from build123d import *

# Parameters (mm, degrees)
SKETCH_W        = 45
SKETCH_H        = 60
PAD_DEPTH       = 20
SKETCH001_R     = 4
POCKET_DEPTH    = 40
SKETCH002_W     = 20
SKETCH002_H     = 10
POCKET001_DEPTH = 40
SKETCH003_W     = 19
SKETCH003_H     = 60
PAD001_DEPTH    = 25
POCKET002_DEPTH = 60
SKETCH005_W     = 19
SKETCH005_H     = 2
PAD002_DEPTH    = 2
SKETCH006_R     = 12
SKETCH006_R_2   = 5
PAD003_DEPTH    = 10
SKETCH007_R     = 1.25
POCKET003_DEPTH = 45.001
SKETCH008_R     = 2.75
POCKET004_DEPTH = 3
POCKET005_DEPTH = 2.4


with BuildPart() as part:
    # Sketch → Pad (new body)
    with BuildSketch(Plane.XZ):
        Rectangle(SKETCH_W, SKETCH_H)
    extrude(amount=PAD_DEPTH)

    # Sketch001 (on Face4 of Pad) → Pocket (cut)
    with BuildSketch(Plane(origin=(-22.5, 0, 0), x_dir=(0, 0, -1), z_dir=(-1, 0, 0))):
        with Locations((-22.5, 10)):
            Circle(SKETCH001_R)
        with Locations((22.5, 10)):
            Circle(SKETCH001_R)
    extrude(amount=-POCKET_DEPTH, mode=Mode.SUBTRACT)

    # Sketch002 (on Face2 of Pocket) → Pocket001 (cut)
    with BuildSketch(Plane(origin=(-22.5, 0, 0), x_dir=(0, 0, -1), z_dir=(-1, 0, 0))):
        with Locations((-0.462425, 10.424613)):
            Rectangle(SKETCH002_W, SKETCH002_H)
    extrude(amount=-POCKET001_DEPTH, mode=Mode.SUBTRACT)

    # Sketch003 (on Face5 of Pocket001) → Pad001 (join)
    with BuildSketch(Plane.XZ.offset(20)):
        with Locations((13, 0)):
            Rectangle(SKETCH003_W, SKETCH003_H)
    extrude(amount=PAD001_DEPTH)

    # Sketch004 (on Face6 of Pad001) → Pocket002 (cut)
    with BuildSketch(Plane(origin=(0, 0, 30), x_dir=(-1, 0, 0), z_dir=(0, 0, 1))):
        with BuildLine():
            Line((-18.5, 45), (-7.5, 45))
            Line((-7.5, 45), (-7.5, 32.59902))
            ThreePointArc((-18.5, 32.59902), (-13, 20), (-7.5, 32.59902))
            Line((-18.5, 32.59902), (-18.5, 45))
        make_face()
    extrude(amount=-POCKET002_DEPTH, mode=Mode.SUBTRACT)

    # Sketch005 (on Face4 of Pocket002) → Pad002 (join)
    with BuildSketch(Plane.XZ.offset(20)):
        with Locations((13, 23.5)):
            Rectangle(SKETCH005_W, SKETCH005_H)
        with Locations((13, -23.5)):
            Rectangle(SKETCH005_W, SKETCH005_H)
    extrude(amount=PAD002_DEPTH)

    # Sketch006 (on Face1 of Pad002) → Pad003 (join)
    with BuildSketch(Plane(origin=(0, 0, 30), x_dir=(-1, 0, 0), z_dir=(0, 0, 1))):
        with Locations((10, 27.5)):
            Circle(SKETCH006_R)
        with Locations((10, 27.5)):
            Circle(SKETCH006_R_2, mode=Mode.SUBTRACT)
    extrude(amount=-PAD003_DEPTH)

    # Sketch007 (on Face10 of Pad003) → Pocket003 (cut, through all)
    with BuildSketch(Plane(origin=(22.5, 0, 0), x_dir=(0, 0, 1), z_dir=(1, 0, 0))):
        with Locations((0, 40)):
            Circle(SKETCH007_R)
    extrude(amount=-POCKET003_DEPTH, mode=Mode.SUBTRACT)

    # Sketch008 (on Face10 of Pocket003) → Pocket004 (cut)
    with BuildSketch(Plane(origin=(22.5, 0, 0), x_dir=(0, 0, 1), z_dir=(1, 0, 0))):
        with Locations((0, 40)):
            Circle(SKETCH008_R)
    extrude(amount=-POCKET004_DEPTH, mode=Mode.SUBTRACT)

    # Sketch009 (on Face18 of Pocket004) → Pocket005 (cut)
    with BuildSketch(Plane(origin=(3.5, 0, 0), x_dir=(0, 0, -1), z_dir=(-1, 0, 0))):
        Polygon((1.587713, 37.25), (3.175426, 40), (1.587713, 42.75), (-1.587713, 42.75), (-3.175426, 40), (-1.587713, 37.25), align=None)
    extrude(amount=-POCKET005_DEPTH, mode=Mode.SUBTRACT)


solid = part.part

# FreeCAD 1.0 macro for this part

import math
import FreeCAD as App
import Part
import Sketcher
Q = App.Units.Quantity


def add_polygon(sketch, points):
    """Adds a closed chain of lines whose ends are joined by coincident constraints."""
    first, n = sketch.GeometryCount, len(points)
    for a, b in zip(points, points[1:] + points[:1]):
        sketch.addGeometry(Part.LineSegment(App.Vector(*a, 0), App.Vector(*b, 0)), False)
    for i in range(n):
        sketch.addConstraint(Sketcher.Constraint("Coincident", first + i, 2, first + (i + 1) % n, 1))

doc = App.newDocument("Part")
body = doc.addObject("PartDesign::Body", "Body")

sketch1 = body.newObject("Sketcher::SketchObject", "Sketch")
sketch1.AttachmentSupport = (doc.getObject("XZ_Plane"), [""])
sketch1.MapMode = "FlatFace"
add_polygon(sketch1, [(-22, 30), (-22, -30), (22, -30), (22, 30)])
sketch1.addConstraint([
    Sketcher.Constraint("Vertical", 0),
    Sketcher.Constraint("Horizontal", 1),
    Sketcher.Constraint("Vertical", 2),
    Sketcher.Constraint("Horizontal", 3),
    Sketcher.Constraint("Symmetric", 0, 2, 2, 2, -1, 1),
    Sketcher.Constraint("DistanceX", 1, 1, 1, 2, Q("45 mm")),
    Sketcher.Constraint("DistanceY", 0, 2, 0, 1, Q("60 mm")),
])
pad1 = body.newObject("PartDesign::Pad", "Pad")
pad1.Profile = sketch1
pad1.Length = 20

sketch2 = body.newObject("Sketcher::SketchObject", "Sketch001")
sketch2.AttachmentSupport = (doc.getObject("YZ_Plane"), [""])
sketch2.MapMode = "FlatFace"
sketch2.AttachmentOffset = App.Placement(App.Vector(0, 0, -22.5), App.Rotation())
sketch2.addGeometry([
    Part.Circle(App.Vector(-10, 22.5, 0), App.Vector(0, 0, 1), 4),
    Part.Circle(App.Vector(-10, -22.5, 0), App.Vector(0, 0, 1), 4),
], False)
sketch2.addConstraint([
    Sketcher.Constraint("Equal", 0, 1),
    Sketcher.Constraint("Symmetric", 0, 3, 1, 3, -1),
    Sketcher.Constraint("Diameter", 0, Q("8 mm")),
    Sketcher.Constraint("DistanceX", 0, 3, -1, 1, Q("10 mm")),
    Sketcher.Constraint("DistanceY", 1, 3, 0, 3, Q("45 mm")),
])
pocket1 = body.newObject("PartDesign::Pocket", "Pocket")
pocket1.Profile = sketch2
pocket1.Length = 40
pocket1.Reversed = True

sketch3 = body.newObject("Sketcher::SketchObject", "Sketch002")
sketch3.AttachmentSupport = (doc.getObject("YZ_Plane"), [""])
sketch3.MapMode = "FlatFace"
sketch3.AttachmentOffset = App.Placement(App.Vector(0, 0, -22.5), App.Rotation())
add_polygon(sketch3, [(-15, 10), (-5, 10), (-5, -10), (-15, -10)])
sketch3.addConstraint([
    Sketcher.Constraint("Horizontal", 0),
    Sketcher.Constraint("Vertical", 1),
    Sketcher.Constraint("Horizontal", 2),
    Sketcher.Constraint("Vertical", 3),
    Sketcher.Constraint("DistanceX", 0, 1, 0, 2, Q("10 mm")),
    Sketcher.Constraint("DistanceY", 1, 2, 1, 1, Q("20 mm")),
    Sketcher.Constraint("DistanceX", 0, 2, -1, 1, Q("5.424613 mm")),
    Sketcher.Constraint("DistanceY", -1, 1, 0, 2, Q("10.462425 mm")),
])
pocket2 = body.newObject("PartDesign::Pocket", "Pocket001")
pocket2.Profile = sketch3
pocket2.Length = 40
pocket2.Reversed = True

sketch4 = body.newObject("Sketcher::SketchObject", "Sketch003")
sketch4.AttachmentSupport = (doc.getObject("XZ_Plane"), [""])
sketch4.MapMode = "FlatFace"
sketch4.AttachmentOffset = App.Placement(App.Vector(0, 0, 20), App.Rotation())
add_polygon(sketch4, [(4, 30), (4, -30), (22, -30), (22, 30)])
sketch4.addConstraint([
    Sketcher.Constraint("Vertical", 0),
    Sketcher.Constraint("Horizontal", 1),
    Sketcher.Constraint("Vertical", 2),
    Sketcher.Constraint("Horizontal", 3),
    Sketcher.Constraint("DistanceX", 1, 1, 1, 2, Q("19 mm")),
    Sketcher.Constraint("DistanceY", 0, 2, 0, 1, Q("60 mm")),
    Sketcher.Constraint("DistanceY", 0, 2, -1, 1, Q("30 mm")),
    Sketcher.Constraint("DistanceX", -1, 1, 0, 2, Q("3.5 mm")),
])
pad2 = body.newObject("PartDesign::Pad", "Pad001")
pad2.Profile = sketch4
pad2.Length = 25

sketch5 = body.newObject("Sketcher::SketchObject", "Sketch004")
sketch5.AttachmentSupport = (doc.getObject("XY_Plane"), [""])
sketch5.MapMode = "FlatFace"
sketch5.AttachmentOffset = App.Placement(App.Vector(0, 0, 30), App.Rotation())
sketch5.addGeometry([
    Part.LineSegment(App.Vector(8, -45, 0), App.Vector(18, -45, 0)),
    Part.LineSegment(App.Vector(18, -45, 0), App.Vector(18, -33, 0)),
    Part.ArcOfCircle(Part.Circle(App.Vector(13, -28, 0), App.Vector(0, 0, 1), 8), math.radians(-43), math.radians(223)),
    Part.LineSegment(App.Vector(8, -33, 0), App.Vector(8, -45, 0)),
], False)
sketch5.addConstraint([
    Sketcher.Constraint("Coincident", 0, 2, 1, 1),
    Sketcher.Constraint("Coincident", 1, 2, 2, 1),
    Sketcher.Constraint("Coincident", 2, 2, 3, 1),
    Sketcher.Constraint("Coincident", 3, 2, 0, 1),
    Sketcher.Constraint("Horizontal", 0),
    Sketcher.Constraint("Vertical", 1),
    Sketcher.Constraint("Vertical", 3),
    Sketcher.Constraint("Horizontal", 1, 2, 2, 2),
    Sketcher.Constraint("Radius", 2, Q("7.5 mm")),
    Sketcher.Constraint("DistanceX", 0, 1, 0, 2, Q("11 mm")),
    Sketcher.Constraint("DistanceX", -1, 1, 2, 3, Q("13 mm")),
    Sketcher.Constraint("DistanceY", 0, 2, -1, 1, Q("45 mm")),
    Sketcher.Constraint("DistanceY", 2, 3, -1, 1, Q("27.5 mm")),
])
pocket3 = body.newObject("PartDesign::Pocket", "Pocket002")
pocket3.Profile = sketch5
pocket3.Length = 60

sketch6 = body.newObject("Sketcher::SketchObject", "Sketch005")
sketch6.AttachmentSupport = (doc.getObject("XZ_Plane"), [""])
sketch6.MapMode = "FlatFace"
sketch6.AttachmentOffset = App.Placement(App.Vector(0, 0, 20), App.Rotation())
add_polygon(sketch6, [(3.5, 24.5), (3.5, 22.5), (22.5, 22.5), (22.5, 24.5)])
add_polygon(sketch6, [(3.5, -22.5), (3.5, -24.5), (22.5, -24.5), (22.5, -22.5)])
sketch6.addConstraint([
    Sketcher.Constraint("Vertical", 0),
    Sketcher.Constraint("Horizontal", 1),
    Sketcher.Constraint("Vertical", 2),
    Sketcher.Constraint("Horizontal", 3),
    Sketcher.Constraint("Vertical", 4),
    Sketcher.Constraint("Horizontal", 5),
    Sketcher.Constraint("Vertical", 6),
    Sketcher.Constraint("Horizontal", 7),
    Sketcher.Constraint("Symmetric", 3, 2, 4, 2, -1),
    Sketcher.Constraint("Symmetric", 1, 2, 6, 2, -1),
    Sketcher.Constraint("DistanceX", 1, 1, 1, 2, Q("19 mm")),
    Sketcher.Constraint("DistanceY", 0, 2, 0, 1, Q("2 mm")),
    Sketcher.Constraint("DistanceY", 4, 2, 0, 2, Q("47 mm")),
    Sketcher.Constraint("DistanceX", -1, 1, 0, 2, Q("3.5 mm")),
])
pad3 = body.newObject("PartDesign::Pad", "Pad002")
pad3.Profile = sketch6
pad3.Length = 2

sketch7 = body.newObject("Sketcher::SketchObject", "Sketch006")
sketch7.AttachmentSupport = (doc.getObject("XY_Plane"), [""])
sketch7.MapMode = "FlatFace"
sketch7.AttachmentOffset = App.Placement(App.Vector(0, 0, 30), App.Rotation())
sketch7.addGeometry([
    Part.Circle(App.Vector(-10, -28, 0), App.Vector(0, 0, 1), 12),
    Part.Circle(App.Vector(-10, -28, 0), App.Vector(0, 0, 1), 5),
], False)
sketch7.addConstraint([
    Sketcher.Constraint("Coincident", 1, 3, 0, 3),
    Sketcher.Constraint("Diameter", 0, Q("24 mm")),
    Sketcher.Constraint("Diameter", 1, Q("10 mm")),
    Sketcher.Constraint("DistanceX", 0, 3, -1, 1, Q("10 mm")),
    Sketcher.Constraint("DistanceY", 0, 3, -1, 1, Q("27.5 mm")),
])
pad4 = body.newObject("PartDesign::Pad", "Pad003")
pad4.Profile = sketch7
pad4.Length = 10
pad4.Reversed = True

sketch8 = body.newObject("Sketcher::SketchObject", "Sketch007")
sketch8.AttachmentSupport = (doc.getObject("YZ_Plane"), [""])
sketch8.MapMode = "FlatFace"
sketch8.AttachmentOffset = App.Placement(App.Vector(0, 0, 22.5), App.Rotation())
sketch8.addGeometry(Part.Circle(App.Vector(-40, 0, 0), App.Vector(0, 0, 1), 1.2), False)
sketch8.addConstraint([
    Sketcher.Constraint("PointOnObject", 0, 3, -1),
    Sketcher.Constraint("Diameter", 0, Q("2.5 mm")),
    Sketcher.Constraint("DistanceX", 0, 3, -1, 1, Q("40 mm")),
])
pocket4 = body.newObject("PartDesign::Pocket", "Pocket003")
pocket4.Profile = sketch8
pocket4.Type = "ThroughAll"

sketch9 = body.newObject("Sketcher::SketchObject", "Sketch008")
sketch9.AttachmentSupport = (doc.getObject("YZ_Plane"), [""])
sketch9.MapMode = "FlatFace"
sketch9.AttachmentOffset = App.Placement(App.Vector(0, 0, 22.5), App.Rotation())
sketch9.addGeometry(Part.Circle(App.Vector(-40, 0, 0), App.Vector(0, 0, 1), 2.8), False)
sketch9.addConstraint([
    Sketcher.Constraint("PointOnObject", 0, 3, -1),
    Sketcher.Constraint("Diameter", 0, Q("5.5 mm")),
    Sketcher.Constraint("DistanceX", 0, 3, -1, 1, Q("40 mm")),
])
pocket5 = body.newObject("PartDesign::Pocket", "Pocket004")
pocket5.Profile = sketch9
pocket5.Length = 3

sketch10 = body.newObject("Sketcher::SketchObject", "Sketch009")
sketch10.AttachmentSupport = (doc.getObject("YZ_Plane"), [""])
sketch10.MapMode = "FlatFace"
sketch10.AttachmentOffset = App.Placement(App.Vector(0, 0, 3.5), App.Rotation())
add_polygon(sketch10, [(-37.2, -1.6), (-40, -3.2), (-42.8, -1.6), (-42.8, 1.6), (-40, 3.2), (-37.2, 1.6)])
sketch10.addConstraint([
    Sketcher.Constraint("Vertical", 2),
    Sketcher.Constraint("Vertical", 5),
    Sketcher.Constraint("Symmetric", 0, 2, 3, 2, -1),
    Sketcher.Constraint("Parallel", 0, 3),
    Sketcher.Constraint("Parallel", 1, 4),
    Sketcher.Constraint("Horizontal", 2, 2, 4, 2),
    Sketcher.Constraint("Horizontal", 1, 2, 5, 2),
    Sketcher.Constraint("Angle", 0, Q("-150.000004 deg")),
    Sketcher.Constraint("DistanceX", 0, 2, -1, 1, Q("40 mm")),
    Sketcher.Constraint("DistanceX", 2, 2, 4, 2, Q("5.5 mm")),
    Sketcher.Constraint("DistanceY", 2, 1, 2, 2, Q("3.175426 mm")),
])
pocket6 = body.newObject("PartDesign::Pocket", "Pocket005")
pocket6.Profile = sketch10
pocket6.Length = 2.4
pocket6.Reversed = True

doc.recompute()
